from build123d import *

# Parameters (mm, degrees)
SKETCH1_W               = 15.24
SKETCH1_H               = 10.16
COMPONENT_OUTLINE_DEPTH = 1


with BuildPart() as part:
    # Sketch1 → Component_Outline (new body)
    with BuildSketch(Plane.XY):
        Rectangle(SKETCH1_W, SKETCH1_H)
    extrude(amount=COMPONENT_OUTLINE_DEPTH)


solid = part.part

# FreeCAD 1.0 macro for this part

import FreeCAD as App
import Part
import Sketcher
Q = App.Units.Quantity

doc = App.newDocument("Part")
params = doc.addObject("Spreadsheet::Sheet", "Params")
for row, (alias, value) in enumerate([
    ("sketch1_width", "0.6 in"),
    ("sketch1_height", "0.4 in"),
    ("pad1_length", "1 mm"),
], start=1):
    params.set(f"A{row}", alias)
    params.set(f"B{row}", "=" + value)
    params.setAlias(f"B{row}", alias)

body = doc.addObject("PartDesign::Body", "Body")

# Sketch on XY plane
sketch1 = body.newObject("Sketcher::SketchObject", "Sketch")
sketch1.AttachmentSupport = (doc.getObject("XY_Plane"), [""])
sketch1.MapMode = "FlatFace"
sketch1.addGeometry([
    Part.LineSegment(App.Vector(-8, 5, 0), App.Vector(-8, -5, 0)),
    Part.LineSegment(App.Vector(-8, -5, 0), App.Vector(8, -5, 0)),
    Part.LineSegment(App.Vector(8, -5, 0), App.Vector(8, 5, 0)),
    Part.LineSegment(App.Vector(8, 5, 0), App.Vector(-8, 5, 0)),
], False)
sketch1.addConstraint([
    Sketcher.Constraint("Coincident", 0, 2, 1, 1),
    Sketcher.Constraint("Coincident", 1, 2, 2, 1),
    Sketcher.Constraint("Coincident", 2, 2, 3, 1),
    Sketcher.Constraint("Coincident", 3, 2, 0, 1),
    Sketcher.Constraint("Vertical", 0),
    Sketcher.Constraint("Horizontal", 1),
    Sketcher.Constraint("Vertical", 2),
    Sketcher.Constraint("Horizontal", 3),
    Sketcher.Constraint("Symmetric", 0, 2, 2, 2, -1, 1),
    Sketcher.Constraint("DistanceX", 1, 1, 1, 2, Q("0.6 in")),
    Sketcher.Constraint("DistanceY", 0, 2, 0, 1, Q("0.4 in")),
])
sketch1.setExpression("Constraints[9]", "Params.sketch1_width")
sketch1.setExpression("Constraints[10]", "Params.sketch1_height")
pad1 = body.newObject("PartDesign::Pad", "Pad")
pad1.Profile = sketch1
pad1.setExpression("Length", "Params.pad1_length")

doc.recompute()
